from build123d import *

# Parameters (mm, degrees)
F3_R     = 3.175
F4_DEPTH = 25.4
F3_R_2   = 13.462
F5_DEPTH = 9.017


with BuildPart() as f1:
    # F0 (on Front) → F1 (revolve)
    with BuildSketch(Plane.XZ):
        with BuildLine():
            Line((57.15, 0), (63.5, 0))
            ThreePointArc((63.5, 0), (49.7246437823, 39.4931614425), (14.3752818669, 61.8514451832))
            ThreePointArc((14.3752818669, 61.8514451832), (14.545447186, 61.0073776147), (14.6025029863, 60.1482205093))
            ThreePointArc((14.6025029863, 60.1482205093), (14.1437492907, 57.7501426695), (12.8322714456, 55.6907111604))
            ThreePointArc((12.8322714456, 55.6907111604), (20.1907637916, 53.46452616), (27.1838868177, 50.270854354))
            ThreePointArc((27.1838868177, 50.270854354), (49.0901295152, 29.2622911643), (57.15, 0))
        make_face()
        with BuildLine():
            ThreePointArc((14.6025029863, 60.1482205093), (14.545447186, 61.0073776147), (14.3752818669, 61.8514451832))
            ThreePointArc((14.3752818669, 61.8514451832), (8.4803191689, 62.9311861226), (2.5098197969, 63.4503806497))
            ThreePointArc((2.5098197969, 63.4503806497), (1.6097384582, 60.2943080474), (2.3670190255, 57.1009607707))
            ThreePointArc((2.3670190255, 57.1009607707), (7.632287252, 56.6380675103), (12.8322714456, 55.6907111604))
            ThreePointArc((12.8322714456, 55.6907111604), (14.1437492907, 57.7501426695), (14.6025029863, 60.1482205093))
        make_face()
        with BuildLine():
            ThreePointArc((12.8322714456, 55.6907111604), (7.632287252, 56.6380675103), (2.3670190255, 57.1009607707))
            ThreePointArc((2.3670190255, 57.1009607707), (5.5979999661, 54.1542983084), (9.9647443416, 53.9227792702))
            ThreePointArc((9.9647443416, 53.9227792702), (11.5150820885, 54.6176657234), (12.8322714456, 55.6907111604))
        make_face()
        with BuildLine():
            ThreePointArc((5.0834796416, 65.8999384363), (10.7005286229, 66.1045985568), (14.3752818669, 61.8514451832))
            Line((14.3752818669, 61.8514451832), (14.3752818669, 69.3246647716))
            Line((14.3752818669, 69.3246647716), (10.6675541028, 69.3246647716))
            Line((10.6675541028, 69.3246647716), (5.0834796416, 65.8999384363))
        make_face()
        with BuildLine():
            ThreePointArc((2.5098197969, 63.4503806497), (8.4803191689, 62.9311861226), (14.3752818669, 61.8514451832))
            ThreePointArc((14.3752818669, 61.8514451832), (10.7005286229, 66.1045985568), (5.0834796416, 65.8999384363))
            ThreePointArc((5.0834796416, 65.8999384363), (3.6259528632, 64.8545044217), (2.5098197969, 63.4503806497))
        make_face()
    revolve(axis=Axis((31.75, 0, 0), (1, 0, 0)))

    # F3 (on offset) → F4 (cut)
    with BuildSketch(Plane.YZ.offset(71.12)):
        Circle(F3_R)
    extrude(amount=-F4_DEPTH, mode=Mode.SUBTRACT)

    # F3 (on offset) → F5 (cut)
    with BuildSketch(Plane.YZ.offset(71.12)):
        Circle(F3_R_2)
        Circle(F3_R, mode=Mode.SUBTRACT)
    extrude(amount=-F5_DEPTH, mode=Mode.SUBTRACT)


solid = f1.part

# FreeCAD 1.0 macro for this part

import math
import FreeCAD as App
import Part
import Sketcher
from FreeCAD import Vector
Q = App.Units.Quantity

doc = App.newDocument("Part")
body = doc.addObject("PartDesign::Body", "Body")

# Sketch on XZ plane
sketch1 = body.newObject("Sketcher::SketchObject", "Sketch")
sketch1.AttachmentSupport = (doc.getObject("XZ_Plane"), [""])
sketch1.MapMode = "FlatFace"
sketch1.addGeometry([
    Part.LineSegment(Vector(57.1, 0, 0), Vector(63.5, 0, 0)),  # 0
    Part.ArcOfCircle(Part.Circle(Vector(0, 0, 0), Vector(0, 0, 1), 63.5), math.radians(0), math.radians(77)),  # 1
    Part.LineSegment(Vector(14.4, 61.9, 0), Vector(14.4, 69.3, 0)),  # 2
    Part.LineSegment(Vector(14.4, 69.3, 0), Vector(10.7, 69.3, 0)),  # 3
    Part.LineSegment(Vector(10.7, 69.3, 0), Vector(5.1, 65.9, 0)),  # 4
    Part.ArcOfCircle(Part.Circle(Vector(8.1, 60.1, 0), Vector(0, 0, 1), 6.5), math.radians(118), math.radians(149)),  # 5
    Part.ArcOfCircle(Part.Circle(Vector(8.1, 60.1, 0), Vector(0, 0, 1), 6.5), math.radians(149), math.radians(208)),  # 6
    Part.ArcOfCircle(Part.Circle(Vector(8.1, 60.1, 0), Vector(0, 0, 1), 6.5), math.radians(-152), math.radians(-73)),  # 7
    Part.ArcOfCircle(Part.Circle(Vector(8.1, 60.1, 0), Vector(0, 0, 1), 6.5), math.radians(-73), math.radians(-43)),  # 8
    Part.ArcOfCircle(Part.Circle(Vector(0, 0, 0), Vector(0, 0, 1), 57.1), math.radians(61.6), math.radians(77.02)),  # 9
    Part.ArcOfCircle(Part.Circle(Vector(0, 0, 0), Vector(0, 0, 1), 57.1), math.radians(0), math.radians(62)),  # 10
], False)
sketch1.addConstraint([
    Sketcher.Constraint("Coincident", 0, 2, 1, 1),
    Sketcher.Constraint("Coincident", 1, 2, 2, 1),
    Sketcher.Constraint("Coincident", 2, 2, 3, 1),
    Sketcher.Constraint("Coincident", 3, 2, 4, 1),
    Sketcher.Constraint("Coincident", 4, 2, 5, 1),
    Sketcher.Constraint("Tangent", 5, 2, 6, 1),
    Sketcher.Constraint("Tangent", 6, 2, 7, 1),
    Sketcher.Constraint("Tangent", 7, 2, 8, 1),
    Sketcher.Constraint("Coincident", 8, 2, 9, 2),
    Sketcher.Constraint("Tangent", 9, 1, 10, 2),
    Sketcher.Constraint("Coincident", 10, 1, 0, 1),
    Sketcher.Constraint("Horizontal", 0),
    Sketcher.Constraint("Vertical", 2),
    Sketcher.Constraint("Horizontal", 3),
    Sketcher.Constraint("Coincident", 1, 3, -1, 1),
    Sketcher.Constraint("Coincident", 9, 3, -1, 1),
    Sketcher.Constraint("Coincident", 7, 3, 5, 3),
    Sketcher.Constraint("Equal", 7, 8),
    Sketcher.Constraint("Equal", 9, 10),
    Sketcher.Constraint("PointOnObject", 0, 2, -1),
    Sketcher.Constraint("Radius", 1, Q("2.5 in")),
    Sketcher.Constraint("Radius", 9, Q("2.25 in")),
    Sketcher.Constraint("Radius", 5, Q("6.497204 mm")),
    Sketcher.Constraint("DistanceY", 2, 1, 2, 2, Q("7.47322 mm")),
    Sketcher.Constraint("DistanceX", -1, 1, 5, 3, Q("8.105299 mm")),
    Sketcher.Constraint("DistanceX", 6, 2, 5, 2, Q("0.142801 mm")),
    Sketcher.Constraint("Distance", 4, Q("6.550621 mm")),
    Sketcher.Constraint("DistanceX", 3, 2, 3, 1, Q("3.707728 mm")),
    Sketcher.Constraint("DistanceY", -1, 1, 5, 3, Q("60.148221 mm")),
    Sketcher.Constraint("DistanceX", -1, 1, 1, 2, Q("14.375282 mm")),
    Sketcher.Constraint("DistanceX", -1, 1, 5, 2, Q("2.50982 mm")),
    Sketcher.Constraint("DistanceY", -1, 1, 7, 2, Q("53.922779 mm")),
    Sketcher.Constraint("DistanceY", 9, 1, 1, 2, Q("11.580591 mm")),
])
revolution = body.newObject("PartDesign::Revolution", "Revolution")
revolution.Profile = sketch1
revolution.ReferenceAxis = (sketch1, ["H_Axis"])
revolution.Angle = 360

# Sketch on YZ plane
sketch2 = body.newObject("Sketcher::SketchObject", "Sketch001")
sketch2.AttachmentSupport = (doc.getObject("YZ_Plane"), [""])
sketch2.MapMode = "FlatFace"
sketch2.AttachmentOffset = App.Placement(Vector(0, 0, 2.8 * 25.4), App.Rotation())
sketch2.addGeometry(Part.Circle(Vector(0, 0, 0), Vector(0, 0, 1), 3.2), False)
sketch2.addConstraint([
    Sketcher.Constraint("Coincident", 0, 3, -1, 1),
    Sketcher.Constraint("Diameter", 0, Q("0.25 in")),
])
pocket1 = body.newObject("PartDesign::Pocket", "Pocket")
pocket1.Profile = sketch2
pocket1.Length = Q("1 in")

# Sketch on YZ plane
sketch3 = body.newObject("Sketcher::SketchObject", "Sketch002")
sketch3.AttachmentSupport = (doc.getObject("YZ_Plane"), [""])
sketch3.MapMode = "FlatFace"
sketch3.AttachmentOffset = App.Placement(Vector(0, 0, 2.8 * 25.4), App.Rotation())
sketch3.addGeometry([
    Part.Circle(Vector(0, 0, 0), Vector(0, 0, 1), 13.5),
    Part.Circle(Vector(0, 0, 0), Vector(0, 0, 1), 3.2),
], False)
sketch3.addConstraint([
    Sketcher.Constraint("Coincident", 0, 3, -1, 1),
    Sketcher.Constraint("Coincident", 1, 3, -1, 1),
    Sketcher.Constraint("Diameter", 0, Q("1.06 in")),
    Sketcher.Constraint("Diameter", 1, Q("0.25 in")),
])
pocket2 = body.newObject("PartDesign::Pocket", "Pocket001")
pocket2.Profile = sketch3
pocket2.Length = Q("0.355 in")

doc.recompute()
